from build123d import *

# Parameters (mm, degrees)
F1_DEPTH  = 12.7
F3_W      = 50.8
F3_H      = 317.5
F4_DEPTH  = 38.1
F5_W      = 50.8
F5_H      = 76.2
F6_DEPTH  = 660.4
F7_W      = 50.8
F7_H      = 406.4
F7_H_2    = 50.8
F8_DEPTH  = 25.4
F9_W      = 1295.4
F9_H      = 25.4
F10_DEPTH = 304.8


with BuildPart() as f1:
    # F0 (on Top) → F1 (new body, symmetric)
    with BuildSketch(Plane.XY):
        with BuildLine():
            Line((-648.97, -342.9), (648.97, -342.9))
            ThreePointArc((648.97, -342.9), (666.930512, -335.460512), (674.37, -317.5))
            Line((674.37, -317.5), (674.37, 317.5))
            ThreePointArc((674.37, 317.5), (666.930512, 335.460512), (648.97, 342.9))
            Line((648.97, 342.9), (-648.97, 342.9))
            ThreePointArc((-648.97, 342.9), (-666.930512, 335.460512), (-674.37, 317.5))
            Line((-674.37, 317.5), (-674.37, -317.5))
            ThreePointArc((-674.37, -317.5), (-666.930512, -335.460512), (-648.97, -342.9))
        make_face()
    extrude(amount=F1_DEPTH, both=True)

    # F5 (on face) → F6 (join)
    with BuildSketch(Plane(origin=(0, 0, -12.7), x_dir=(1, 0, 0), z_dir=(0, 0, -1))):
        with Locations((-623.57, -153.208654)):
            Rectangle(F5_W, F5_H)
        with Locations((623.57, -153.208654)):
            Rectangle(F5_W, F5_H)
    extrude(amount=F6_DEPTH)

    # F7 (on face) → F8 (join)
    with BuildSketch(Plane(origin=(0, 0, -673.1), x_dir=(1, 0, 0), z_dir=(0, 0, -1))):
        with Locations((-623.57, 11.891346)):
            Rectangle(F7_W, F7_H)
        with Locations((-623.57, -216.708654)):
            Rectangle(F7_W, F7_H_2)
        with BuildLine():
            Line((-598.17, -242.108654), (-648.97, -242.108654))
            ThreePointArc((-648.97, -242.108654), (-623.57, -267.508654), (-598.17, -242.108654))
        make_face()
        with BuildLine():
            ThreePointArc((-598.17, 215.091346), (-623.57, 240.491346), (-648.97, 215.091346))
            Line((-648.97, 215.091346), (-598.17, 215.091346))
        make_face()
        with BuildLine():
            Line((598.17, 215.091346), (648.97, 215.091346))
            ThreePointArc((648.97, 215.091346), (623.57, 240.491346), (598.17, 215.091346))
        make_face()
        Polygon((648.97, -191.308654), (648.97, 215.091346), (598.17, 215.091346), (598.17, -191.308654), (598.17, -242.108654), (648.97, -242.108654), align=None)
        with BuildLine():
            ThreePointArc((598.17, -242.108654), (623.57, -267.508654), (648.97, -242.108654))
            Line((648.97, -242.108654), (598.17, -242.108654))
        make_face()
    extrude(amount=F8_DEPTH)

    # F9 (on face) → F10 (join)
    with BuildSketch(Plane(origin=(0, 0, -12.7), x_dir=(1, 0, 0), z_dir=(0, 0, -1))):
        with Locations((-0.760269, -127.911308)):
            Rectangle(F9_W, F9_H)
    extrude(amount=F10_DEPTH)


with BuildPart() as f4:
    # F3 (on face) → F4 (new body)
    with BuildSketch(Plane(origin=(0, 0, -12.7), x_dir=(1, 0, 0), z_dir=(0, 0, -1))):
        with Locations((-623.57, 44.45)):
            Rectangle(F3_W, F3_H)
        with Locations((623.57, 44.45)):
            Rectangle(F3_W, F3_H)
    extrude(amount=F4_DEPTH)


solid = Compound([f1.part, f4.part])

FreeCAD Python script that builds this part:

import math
import FreeCAD as App
import Part
import Sketcher

V = App.Vector
Q = App.Units.Quantity


def add_polygon(sketch, points):
    """Adds a closed chain of lines whose ends are joined by coincident constraints."""
    first, n = sketch.GeometryCount, len(points)
    for a, b in zip(points, points[1:] + points[:1]):
        sketch.addGeometry(Part.LineSegment(App.Vector(*a, 0), App.Vector(*b, 0)), False)
    for i in range(n):
        sketch.addConstraint(Sketcher.Constraint("Coincident", first + i, 2, first + (i + 1) % n, 1))

doc = App.newDocument("Part")
params = doc.addObject("Spreadsheet::Sheet", "Params")
for row, (alias, value) in enumerate([
    ("sketch1_radius", "1 in"),
    ("sketch1_height", "25 in"),
    ("sketch1_width", "51.1 in"),
    ("pad1_length", "1 in"),
    ("sketch2_width", "2 in"),
    ("sketch2_height", "3 in"),
    ("pad2_length", "26 in"),
    ("sketch3_radius", "1 in"),
    ("sketch3_height", "18 in"),
    ("pad3_length", "1 in"),
    ("sketch4_width", "51 in"),
    ("sketch4_height", "1 in"),
    ("pad4_length", "12 in"),
    ("sketch5_width", "2 in"),
    ("sketch5_height", "12.5 in"),
    ("pad5_length", "1.5 in"),
], start=1):
    params.set(f"A{row}", alias)
    params.set(f"B{row}", "=" + value)
    params.setAlias(f"B{row}", alias)

body = doc.addObject("PartDesign::Body", "Body")

sketch1 = body.newObject("Sketcher::SketchObject", "Sketch")
sketch1.AttachmentSupport = (doc.getObject("XY_Plane"), [""])
sketch1.MapMode = "FlatFace"
sketch1.addGeometry(Part.LineSegment(V(-649, -343, 0), V(649, -343, 0)), False)
sketch1.addGeometry(Part.ArcOfCircle(Part.Circle(V(649, -317, 0), V(0, 0, 1), 25), math.radians(-90), math.radians(0)), False)
sketch1.addGeometry(Part.LineSegment(V(674, -318, 0), V(674, 318, 0)), False)
sketch1.addGeometry(Part.ArcOfCircle(Part.Circle(V(649, 317, 0), V(0, 0, 1), 25), math.radians(0), math.radians(90)), False)
sketch1.addGeometry(Part.LineSegment(V(649, 343, 0), V(-649, 343, 0)), False)
sketch1.addGeometry(Part.ArcOfCircle(Part.Circle(V(-649, 317, 0), V(0, 0, 1), 25), math.radians(90), math.radians(180)), False)
sketch1.addGeometry(Part.LineSegment(V(-674, 318, 0), V(-674, -318, 0)), False)
sketch1.addGeometry(Part.ArcOfCircle(Part.Circle(V(-649, -317, 0), V(0, 0, 1), 25), math.radians(-180), math.radians(-90)), False)
sketch1.addConstraint(Sketcher.Constraint("Tangent", 0, 2, 1, 1))
sketch1.addConstraint(Sketcher.Constraint("Tangent", 1, 2, 2, 1))
sketch1.addConstraint(Sketcher.Constraint("Tangent", 2, 2, 3, 1))
sketch1.addConstraint(Sketcher.Constraint("Tangent", 3, 2, 4, 1))
sketch1.addConstraint(Sketcher.Constraint("Tangent", 4, 2, 5, 1))
sketch1.addConstraint(Sketcher.Constraint("Tangent", 5, 2, 6, 1))
sketch1.addConstraint(Sketcher.Constraint("Tangent", 6, 2, 7, 1))
sketch1.addConstraint(Sketcher.Constraint("Tangent", 7, 2, 0, 1))
sketch1.addConstraint(Sketcher.Constraint("Horizontal", 0))
sketch1.addConstraint(Sketcher.Constraint("Vertical", 2))
sketch1.addConstraint(Sketcher.Constraint("Horizontal", 4))
sketch1.addConstraint(Sketcher.Constraint("Vertical", 6))
sketch1.addConstraint(Sketcher.Constraint("Equal", 1, 3))
sketch1.addConstraint(Sketcher.Constraint("Equal", 3, 5))
sketch1.addConstraint(Sketcher.Constraint("Equal", 5, 7))
sketch1.addConstraint(Sketcher.Constraint("Symmetric", 1, 3, 5, 3, -1, 1))
sketch1.addConstraint(Sketcher.Constraint("Radius", 1, Q("1 in")))
sketch1.addConstraint(Sketcher.Constraint("DistanceY", 2, 1, 2, 2, Q("25 in")))
sketch1.addConstraint(Sketcher.Constraint("DistanceX", 0, 1, 0, 2, Q("51.1 in")))
sketch1.setExpression("Constraints[16]", "Params.sketch1_radius")
sketch1.setExpression("Constraints[17]", "Params.sketch1_height")
sketch1.setExpression("Constraints[18]", "Params.sketch1_width")
pad1 = body.newObject("PartDesign::Pad", "Pad")
pad1.Profile = sketch1
pad1.setExpression("Length", "Params.pad1_length")
pad1.Midplane = True

sketch2 = body.newObject("Sketcher::SketchObject", "Sketch001")
sketch2.AttachmentSupport = (doc.getObject("XY_Plane"), [""])
sketch2.MapMode = "FlatFace"
sketch2.AttachmentOffset = App.Placement(V(0, 0, -0.5 * 25.4), App.Rotation())
add_polygon(sketch2, [(-649, 115), (-649, 191), (-598, 191), (-598, 115)])
add_polygon(sketch2, [(598, 115), (598, 191), (649, 191), (649, 115)])
sketch2.addConstraint(Sketcher.Constraint("Vertical", 0))
sketch2.addConstraint(Sketcher.Constraint("Horizontal", 1))
sketch2.addConstraint(Sketcher.Constraint("Vertical", 2))
sketch2.addConstraint(Sketcher.Constraint("Horizontal", 3))
sketch2.addConstraint(Sketcher.Constraint("Vertical", 4))
sketch2.addConstraint(Sketcher.Constraint("Horizontal", 5))
sketch2.addConstraint(Sketcher.Constraint("Vertical", 6))
sketch2.addConstraint(Sketcher.Constraint("Horizontal", 7))
sketch2.addConstraint(Sketcher.Constraint("Symmetric", 1, 2, 4, 2, -2))
sketch2.addConstraint(Sketcher.Constraint("Symmetric", 3, 2, 6, 2, -2))
sketch2.addConstraint(Sketcher.Constraint("DistanceX", 1, 1, 1, 2, Q("2 in")))
sketch2.addConstraint(Sketcher.Constraint("DistanceY", 0, 1, 0, 2, Q("3 in")))
sketch2.addConstraint(Sketcher.Constraint("DistanceX", 1, 2, 4, 2, Q("47.1 in")))
sketch2.addConstraint(Sketcher.Constraint("DistanceY", -1, 1, 0, 2, Q("191.308654 mm")))
sketch2.setExpression("Constraints[18]", "Params.sketch2_width")
sketch2.setExpression("Constraints[19]", "Params.sketch2_height")
pad2 = body.newObject("PartDesign::Pad", "Pad001")
pad2.Profile = sketch2
pad2.setExpression("Length", "Params.pad2_length")
pad2.Reversed = True

sketch3 = body.newObject("Sketcher::SketchObject", "Sketch002")
sketch3.AttachmentSupport = (doc.getObject("XY_Plane"), [""])
sketch3.MapMode = "FlatFace"
sketch3.AttachmentOffset = App.Placement(V(0, 0, -26.5 * 25.4), App.Rotation())
sketch3.addGeometry(Part.LineSegment(V(-649, -215, 0), V(-649, 242, 0)), False)
sketch3.addGeometry(Part.ArcOfCircle(Part.Circle(V(-624, 242, 0), V(0, 0, 1), 25), math.radians(0), math.radians(180)), False)
sketch3.addGeometry(Part.LineSegment(V(-598, 242, 0), V(-598, -215, 0)), False)
sketch3.addGeometry(Part.ArcOfCircle(Part.Circle(V(-624, -215, 0), V(0, 0, 1), 25), math.radians(180), math.radians(360)), False)
sketch3.addGeometry(Part.ArcOfCircle(Part.Circle(V(624, -215, 0), V(0, 0, 1), 25), math.radians(180), math.radians(360)), False)
sketch3.addGeometry(Part.LineSegment(V(598, -215, 0), V(598, 242, 0)), False)
sketch3.addGeometry(Part.ArcOfCircle(Part.Circle(V(624, 242, 0), V(0, 0, 1), 25), math.radians(0), math.radians(180)), False)
sketch3.addGeometry(Part.LineSegment(V(649, 242, 0), V(649, -215, 0)), False)
sketch3.addConstraint(Sketcher.Constraint("Tangent", 0, 2, 1, 2))
sketch3.addConstraint(Sketcher.Constraint("Tangent", 1, 1, 2, 1))
sketch3.addConstraint(Sketcher.Constraint("Tangent", 2, 2, 3, 2))
sketch3.addConstraint(Sketcher.Constraint("Tangent", 3, 1, 0, 1))
sketch3.addConstraint(Sketcher.Constraint("Tangent", 4, 1, 5, 1))
sketch3.addConstraint(Sketcher.Constraint("Tangent", 5, 2, 6, 2))
sketch3.addConstraint(Sketcher.Constraint("Tangent", 6, 1, 7, 1))
sketch3.addConstraint(Sketcher.Constraint("Tangent", 7, 2, 4, 2))
sketch3.addConstraint(Sketcher.Constraint("Vertical", 0))
sketch3.addConstraint(Sketcher.Constraint("Vertical", 2))
sketch3.addConstraint(Sketcher.Constraint("Vertical", 5))
sketch3.addConstraint(Sketcher.Constraint("Vertical", 7))
sketch3.addConstraint(Sketcher.Constraint("Equal", 3, 4))
sketch3.addConstraint(Sketcher.Constraint("Symmetric", 3, 3, 4, 3, -2))
sketch3.addConstraint(Sketcher.Constraint("Horizontal", 1, 3, 6, 3))
sketch3.addConstraint(Sketcher.Constraint("Radius", 1, Q("1 in")))
sketch3.addConstraint(Sketcher.Constraint("DistanceY", 0, 1, 0, 2, Q("18 in")))
sketch3.addConstraint(Sketcher.Constraint("DistanceX", 3, 3, 4, 3, Q("49.1 in")))
sketch3.addConstraint(Sketcher.Constraint("DistanceY", -1, 1, 1, 3, Q("242.108654 mm")))
sketch3.setExpression("Constraints[15]", "Params.sketch3_radius")
sketch3.setExpression("Constraints[16]", "Params.sketch3_height")
pad3 = body.newObject("PartDesign::Pad", "Pad002")
pad3.Profile = sketch3
pad3.setExpression("Length", "Params.pad3_length")
pad3.Reversed = True

sketch4 = body.newObject("Sketcher::SketchObject", "Sketch003")
sketch4.AttachmentSupport = (doc.getObject("XY_Plane"), [""])
sketch4.MapMode = "FlatFace"
sketch4.AttachmentOffset = App.Placement(V(0, 0, -0.5 * 25.4), App.Rotation())
add_polygon(sketch4, [(-648, 115), (-648, 141), (647, 141), (647, 115)])
sketch4.addConstraint(Sketcher.Constraint("Vertical", 0))
sketch4.addConstraint(Sketcher.Constraint("Horizontal", 1))
sketch4.addConstraint(Sketcher.Constraint("Vertical", 2))
sketch4.addConstraint(Sketcher.Constraint("Horizontal", 3))
sketch4.addConstraint(Sketcher.Constraint("DistanceX", 1, 1, 1, 2, Q("51 in")))
sketch4.addConstraint(Sketcher.Constraint("DistanceY", 0, 1, 0, 2, Q("1 in")))
sketch4.addConstraint(Sketcher.Constraint("DistanceX", 0, 2, -1, 1, Q("648.460269 mm")))
sketch4.addConstraint(Sketcher.Constraint("DistanceY", -1, 1, 0, 2, Q("140.611308 mm")))
sketch4.setExpression("Constraints[8]", "Params.sketch4_width")
sketch4.setExpression("Constraints[9]", "Params.sketch4_height")
pad4 = body.newObject("PartDesign::Pad", "Pad003")
pad4.Profile = sketch4
pad4.setExpression("Length", "Params.pad4_length")
pad4.Reversed = True
body2 = doc.addObject("PartDesign::Body", "Body001")
body2.AllowCompound = True

sketch5 = body2.newObject("Sketcher::SketchObject", "Sketch004")
sketch5.AttachmentSupport = (doc.getObject("XY_Plane001"), [""])
sketch5.MapMode = "FlatFace"
sketch5.AttachmentOffset = App.Placement(V(0, 0, -0.5 * 25.4), App.Rotation())
add_polygon(sketch5, [(-649, -203), (-649, 114), (-598, 114), (-598, -203)])
add_polygon(sketch5, [(598, -203), (598, 114), (649, 114), (649, -203)])
sketch5.addConstraint(Sketcher.Constraint("Vertical", 0))
sketch5.addConstraint(Sketcher.Constraint("Horizontal", 1))
sketch5.addConstraint(Sketcher.Constraint("Vertical", 2))
sketch5.addConstraint(Sketcher.Constraint("Horizontal", 3))
sketch5.addConstraint(Sketcher.Constraint("Vertical", 4))
sketch5.addConstraint(Sketcher.Constraint("Horizontal", 5))
sketch5.addConstraint(Sketcher.Constraint("Vertical", 6))
sketch5.addConstraint(Sketcher.Constraint("Horizontal", 7))
sketch5.addConstraint(Sketcher.Constraint("Symmetric", 1, 2, 4, 2, -2))
sketch5.addConstraint(Sketcher.Constraint("Symmetric", 3, 2, 6, 2, -2))
sketch5.addConstraint(Sketcher.Constraint("DistanceX", 1, 1, 1, 2, Q("2 in")))
sketch5.addConstraint(Sketcher.Constraint("DistanceY", 0, 1, 0, 2, Q("12.5 in")))
sketch5.addConstraint(Sketcher.Constraint("DistanceY", 2, 2, -1, 1, Q("8 in")))
sketch5.addConstraint(Sketcher.Constraint("DistanceX", 1, 2, 4, 2, Q("47.1 in")))
sketch5.setExpression("Constraints[18]", "Params.sketch5_width")
sketch5.setExpression("Constraints[19]", "Params.sketch5_height")
pad5 = body2.newObject("PartDesign::Pad", "Pad004")
pad5.Profile = sketch5
pad5.setExpression("Length", "Params.pad5_length")
pad5.Reversed = True

doc.recompute()
